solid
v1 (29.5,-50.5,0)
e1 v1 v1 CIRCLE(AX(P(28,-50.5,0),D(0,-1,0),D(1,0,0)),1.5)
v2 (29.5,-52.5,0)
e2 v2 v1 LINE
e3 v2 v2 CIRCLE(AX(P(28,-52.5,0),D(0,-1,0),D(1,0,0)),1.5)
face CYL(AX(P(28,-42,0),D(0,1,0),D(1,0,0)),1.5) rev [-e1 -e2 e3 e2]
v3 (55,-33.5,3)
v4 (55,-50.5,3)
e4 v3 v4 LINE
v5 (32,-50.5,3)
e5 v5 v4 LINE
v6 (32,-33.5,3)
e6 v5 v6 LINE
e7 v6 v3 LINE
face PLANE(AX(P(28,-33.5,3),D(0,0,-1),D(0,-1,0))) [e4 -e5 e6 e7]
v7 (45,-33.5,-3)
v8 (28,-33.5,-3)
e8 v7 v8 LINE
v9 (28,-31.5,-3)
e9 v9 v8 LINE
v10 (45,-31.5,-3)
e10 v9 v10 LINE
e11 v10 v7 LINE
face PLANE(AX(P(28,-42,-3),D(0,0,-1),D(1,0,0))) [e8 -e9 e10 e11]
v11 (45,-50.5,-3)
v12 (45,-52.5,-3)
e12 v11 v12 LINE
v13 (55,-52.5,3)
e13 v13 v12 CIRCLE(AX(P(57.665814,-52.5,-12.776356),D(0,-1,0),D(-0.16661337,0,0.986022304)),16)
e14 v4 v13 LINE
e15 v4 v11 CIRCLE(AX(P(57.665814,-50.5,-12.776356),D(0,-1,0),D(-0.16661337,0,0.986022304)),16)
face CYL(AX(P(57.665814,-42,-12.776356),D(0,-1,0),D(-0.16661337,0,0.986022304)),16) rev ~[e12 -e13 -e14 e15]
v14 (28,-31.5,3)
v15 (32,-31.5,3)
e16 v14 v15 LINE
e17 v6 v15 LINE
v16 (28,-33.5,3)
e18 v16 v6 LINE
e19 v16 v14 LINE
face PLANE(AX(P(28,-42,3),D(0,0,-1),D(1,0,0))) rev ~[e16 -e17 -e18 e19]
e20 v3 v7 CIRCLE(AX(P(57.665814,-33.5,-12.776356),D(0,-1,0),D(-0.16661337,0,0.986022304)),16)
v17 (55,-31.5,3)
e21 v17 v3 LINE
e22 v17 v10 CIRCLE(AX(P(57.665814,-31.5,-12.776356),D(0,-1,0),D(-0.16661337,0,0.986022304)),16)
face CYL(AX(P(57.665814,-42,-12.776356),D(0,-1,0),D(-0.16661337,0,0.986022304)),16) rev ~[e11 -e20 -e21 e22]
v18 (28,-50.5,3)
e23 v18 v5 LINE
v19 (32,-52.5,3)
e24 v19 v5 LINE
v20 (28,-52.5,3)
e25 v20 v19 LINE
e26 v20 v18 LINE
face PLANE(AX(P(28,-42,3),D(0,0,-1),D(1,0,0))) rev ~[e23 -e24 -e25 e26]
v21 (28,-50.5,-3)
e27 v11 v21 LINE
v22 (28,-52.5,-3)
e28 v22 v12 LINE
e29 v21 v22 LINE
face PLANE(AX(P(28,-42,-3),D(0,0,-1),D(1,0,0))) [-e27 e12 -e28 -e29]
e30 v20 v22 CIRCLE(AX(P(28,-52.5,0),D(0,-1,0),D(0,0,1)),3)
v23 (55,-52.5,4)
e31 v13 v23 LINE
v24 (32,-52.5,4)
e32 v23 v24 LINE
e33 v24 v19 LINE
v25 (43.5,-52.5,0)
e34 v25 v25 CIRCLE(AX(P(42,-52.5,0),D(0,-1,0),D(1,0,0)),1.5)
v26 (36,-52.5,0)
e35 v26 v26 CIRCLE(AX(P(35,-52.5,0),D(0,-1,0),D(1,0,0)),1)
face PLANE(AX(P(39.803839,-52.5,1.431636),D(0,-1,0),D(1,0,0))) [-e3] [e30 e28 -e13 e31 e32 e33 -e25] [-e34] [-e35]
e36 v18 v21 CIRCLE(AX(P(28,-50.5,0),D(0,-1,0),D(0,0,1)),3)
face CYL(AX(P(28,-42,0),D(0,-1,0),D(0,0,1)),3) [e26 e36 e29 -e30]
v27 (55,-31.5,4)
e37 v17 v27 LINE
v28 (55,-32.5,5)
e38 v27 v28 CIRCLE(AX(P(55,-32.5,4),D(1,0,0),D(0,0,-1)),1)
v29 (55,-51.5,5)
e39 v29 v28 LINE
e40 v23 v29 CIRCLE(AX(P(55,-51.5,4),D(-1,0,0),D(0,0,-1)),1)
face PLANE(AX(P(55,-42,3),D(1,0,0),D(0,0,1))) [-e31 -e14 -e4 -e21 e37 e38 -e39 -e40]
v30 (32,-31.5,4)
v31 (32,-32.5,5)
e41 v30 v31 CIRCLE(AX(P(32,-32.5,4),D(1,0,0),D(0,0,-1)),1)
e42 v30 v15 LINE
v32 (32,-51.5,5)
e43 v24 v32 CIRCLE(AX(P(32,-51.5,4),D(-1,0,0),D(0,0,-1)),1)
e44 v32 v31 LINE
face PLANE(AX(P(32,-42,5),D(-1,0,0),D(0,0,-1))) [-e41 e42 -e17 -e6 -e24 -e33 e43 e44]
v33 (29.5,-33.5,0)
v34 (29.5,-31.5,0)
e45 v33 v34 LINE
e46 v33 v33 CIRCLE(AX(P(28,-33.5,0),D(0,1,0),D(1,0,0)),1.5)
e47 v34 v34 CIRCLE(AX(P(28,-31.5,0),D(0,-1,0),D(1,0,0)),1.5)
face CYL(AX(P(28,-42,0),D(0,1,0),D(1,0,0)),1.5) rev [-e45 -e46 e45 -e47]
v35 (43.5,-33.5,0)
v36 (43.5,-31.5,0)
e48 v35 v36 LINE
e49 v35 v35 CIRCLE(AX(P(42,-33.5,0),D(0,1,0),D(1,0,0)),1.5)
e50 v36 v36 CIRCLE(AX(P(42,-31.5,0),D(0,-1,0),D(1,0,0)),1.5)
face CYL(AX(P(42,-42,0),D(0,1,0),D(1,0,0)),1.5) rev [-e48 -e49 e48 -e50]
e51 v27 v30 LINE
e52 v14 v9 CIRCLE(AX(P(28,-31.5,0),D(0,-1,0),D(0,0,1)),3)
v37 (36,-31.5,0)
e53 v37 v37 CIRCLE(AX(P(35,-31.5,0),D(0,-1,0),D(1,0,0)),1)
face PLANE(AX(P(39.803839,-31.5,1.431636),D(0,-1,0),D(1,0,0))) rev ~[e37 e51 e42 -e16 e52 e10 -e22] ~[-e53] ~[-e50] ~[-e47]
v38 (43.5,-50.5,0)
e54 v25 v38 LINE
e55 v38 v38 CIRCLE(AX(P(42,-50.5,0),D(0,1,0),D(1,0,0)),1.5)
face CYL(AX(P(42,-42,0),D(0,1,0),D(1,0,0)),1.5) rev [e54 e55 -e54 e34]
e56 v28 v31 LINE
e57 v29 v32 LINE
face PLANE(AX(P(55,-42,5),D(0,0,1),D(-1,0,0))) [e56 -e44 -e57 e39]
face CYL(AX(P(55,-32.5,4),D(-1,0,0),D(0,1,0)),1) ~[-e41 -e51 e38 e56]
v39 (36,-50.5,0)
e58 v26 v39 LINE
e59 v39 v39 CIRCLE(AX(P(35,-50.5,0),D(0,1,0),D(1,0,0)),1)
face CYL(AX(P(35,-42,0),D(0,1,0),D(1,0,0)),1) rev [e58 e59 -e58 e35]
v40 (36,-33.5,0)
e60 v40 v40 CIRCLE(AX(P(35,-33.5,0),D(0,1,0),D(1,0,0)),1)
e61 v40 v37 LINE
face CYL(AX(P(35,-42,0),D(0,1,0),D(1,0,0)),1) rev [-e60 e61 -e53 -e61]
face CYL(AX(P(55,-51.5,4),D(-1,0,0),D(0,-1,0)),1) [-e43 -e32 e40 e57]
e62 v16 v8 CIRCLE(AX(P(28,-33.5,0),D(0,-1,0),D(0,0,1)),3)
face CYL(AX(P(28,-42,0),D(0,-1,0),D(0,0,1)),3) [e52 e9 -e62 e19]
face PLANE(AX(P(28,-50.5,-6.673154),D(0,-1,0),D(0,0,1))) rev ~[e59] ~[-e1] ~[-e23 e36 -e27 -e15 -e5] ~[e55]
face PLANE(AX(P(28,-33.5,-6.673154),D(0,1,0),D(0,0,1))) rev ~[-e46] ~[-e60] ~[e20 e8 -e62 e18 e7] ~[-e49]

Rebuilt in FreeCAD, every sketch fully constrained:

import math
import FreeCAD as App
import Part
import Sketcher
from FreeCAD import Vector


def edges_at(feature, points):
    """Names of the edges that pass closest to the given points."""
    edges = feature.Shape.Edges
    near = lambda p: min(range(len(edges)), key=lambda i: edges[i].distToShape(Part.Vertex(*p))[0])
    return sorted({f"Edge{near(p) + 1}" for p in points})

doc = App.newDocument("Part")
body = doc.addObject("PartDesign::Body", "Body")

# Sketch on XZ plane
sketch1 = body.newObject("Sketcher::SketchObject", "Sketch")
sketch1.AttachmentSupport = (doc.getObject("XZ_Plane"), [""])
sketch1.MapMode = "FlatFace"
sketch1.addGeometry([
    Part.ArcOfCircle(Part.Circle(Vector(0, 0, 0), Vector(0, 0, 1), 3), math.radians(90), math.radians(270)),  # 0
    Part.LineSegment(Vector(0, -3, 0), Vector(17, -3, 0)),  # 1
    Part.ArcOfCircle(Part.Circle(Vector(29.7, -12.8, 0), Vector(0, 0, 1), 16), math.radians(100), math.radians(142)),  # 2
    Part.LineSegment(Vector(27, 3, 0), Vector(27, 5, 0)),  # 3
    Part.LineSegment(Vector(27, 5, 0), Vector(4, 5, 0)),  # 4
    Part.LineSegment(Vector(4, 5, 0), Vector(4, 3, 0)),  # 5
    Part.LineSegment(Vector(4, 3, 0), Vector(0, 3, 0)),  # 6
    Part.Circle(Vector(0, 0, 0), Vector(0, 0, 1), 1.5),  # 7
    Part.Circle(Vector(7, 0, 0), Vector(0, 0, 1), 1),  # 8
    Part.Circle(Vector(14, 0, 0), Vector(0, 0, 1), 1.5),  # 9
], False)
sketch1.addConstraint([
    Sketcher.Constraint("Tangent", 0, 2, 1, 1),
    Sketcher.Constraint("Coincident", 1, 2, 2, 2),
    Sketcher.Constraint("Coincident", 2, 1, 3, 1),
    Sketcher.Constraint("Coincident", 3, 2, 4, 1),
    Sketcher.Constraint("Coincident", 4, 2, 5, 1),
    Sketcher.Constraint("Coincident", 5, 2, 6, 1),
    Sketcher.Constraint("Tangent", 6, 2, 0, 1),
    Sketcher.Constraint("Horizontal", 1),
    Sketcher.Constraint("Vertical", 3),
    Sketcher.Constraint("Horizontal", 4),
    Sketcher.Constraint("Vertical", 5),
    Sketcher.Constraint("Horizontal", 6),
    Sketcher.Constraint("Coincident", 0, 3, -1, 1),
    Sketcher.Constraint("Coincident", 7, 3, -1, 1),
    Sketcher.Constraint("Equal", 7, 9),
    Sketcher.Constraint("PointOnObject", 8, 3, -1),
    Sketcher.Constraint("PointOnObject", 9, 3, -1),
    Sketcher.Constraint("Horizontal", 2, 1, 5, 2),
    Sketcher.Constraint("Diameter", 7, 3.0),
    Sketcher.Constraint("Diameter", 8, 2.0),
    Sketcher.Constraint("Radius", 0, 3.0),
    Sketcher.Constraint("Radius", 2, 16.0),
    Sketcher.Constraint("DistanceX", 1, 1, 1, 2, 17.0),
    Sketcher.Constraint("DistanceX", 4, 2, 4, 1, 23.0),
    Sketcher.Constraint("DistanceX", 6, 2, 6, 1, 4.0),
    Sketcher.Constraint("DistanceY", 3, 1, 3, 2, 2.0),
    Sketcher.Constraint("DistanceX", -1, 1, 8, 3, 7.0),
    Sketcher.Constraint("DistanceX", -1, 1, 9, 3, 14.0),
])
pad1 = body.newObject("PartDesign::Pad", "Pad")
pad1.Profile = sketch1
pad1.Length = 21
pad1.Midplane = True

# Sketch on YZ plane
sketch2 = body.newObject("Sketcher::SketchObject", "Sketch001")
sketch2.AttachmentSupport = (doc.getObject("YZ_Plane"), [""])
sketch2.MapMode = "FlatFace"
sketch2.addGeometry([
    Part.LineSegment(Vector(8, 3, 0), Vector(8, -7, 0)),
    Part.LineSegment(Vector(8, -7, 0), Vector(-8, -7, 0)),
    Part.LineSegment(Vector(-8, -7, 0), Vector(-8, 3, 0)),
    Part.LineSegment(Vector(-8, 3, 0), Vector(8, 3, 0)),
], False)
sketch2.addConstraint([
    Sketcher.Constraint("Coincident", 0, 2, 1, 1),
    Sketcher.Constraint("Coincident", 1, 2, 2, 1),
    Sketcher.Constraint("Coincident", 2, 2, 3, 1),
    Sketcher.Constraint("Coincident", 3, 2, 0, 1),
    Sketcher.Constraint("Vertical", 0),
    Sketcher.Constraint("Horizontal", 1),
    Sketcher.Constraint("Vertical", 2),
    Sketcher.Constraint("Horizontal", 3),
    Sketcher.Constraint("DistanceX", 1, 2, 1, 1, 17.0),
    Sketcher.Constraint("DistanceY", -1, 1, 2, 2, 3.0),
    Sketcher.Constraint("DistanceX", -1, 1, 0, 2, 8.5),
    Sketcher.Constraint("DistanceY", 0, 2, 0, 1, 9.673154),
])
pocket1 = body.newObject("PartDesign::Pocket", "Pocket")
pocket1.Profile = sketch2
pocket1.Type = "ThroughAll"
pocket1.Midplane = True
doc.recompute()

fillet = body.newObject("PartDesign::Fillet", "Fillet")
fillet.Base = (pocket1, edges_at(pocket1, [(15.5, 10.5, 5), (15.5, -10.5, 5)]))
fillet.Radius = 1
body2 = doc.addObject("PartDesign::Body", "Body001")
doc.recompute()

body.Placement = App.Placement(Vector(28, -42, 0), App.Rotation(Vector(0, 0, 1), 0))
boolean = body2.newObject("PartDesign::Boolean", "Boolean")
boolean.Type = "Fuse"
boolean.addObjects([body])

doc.recompute()
